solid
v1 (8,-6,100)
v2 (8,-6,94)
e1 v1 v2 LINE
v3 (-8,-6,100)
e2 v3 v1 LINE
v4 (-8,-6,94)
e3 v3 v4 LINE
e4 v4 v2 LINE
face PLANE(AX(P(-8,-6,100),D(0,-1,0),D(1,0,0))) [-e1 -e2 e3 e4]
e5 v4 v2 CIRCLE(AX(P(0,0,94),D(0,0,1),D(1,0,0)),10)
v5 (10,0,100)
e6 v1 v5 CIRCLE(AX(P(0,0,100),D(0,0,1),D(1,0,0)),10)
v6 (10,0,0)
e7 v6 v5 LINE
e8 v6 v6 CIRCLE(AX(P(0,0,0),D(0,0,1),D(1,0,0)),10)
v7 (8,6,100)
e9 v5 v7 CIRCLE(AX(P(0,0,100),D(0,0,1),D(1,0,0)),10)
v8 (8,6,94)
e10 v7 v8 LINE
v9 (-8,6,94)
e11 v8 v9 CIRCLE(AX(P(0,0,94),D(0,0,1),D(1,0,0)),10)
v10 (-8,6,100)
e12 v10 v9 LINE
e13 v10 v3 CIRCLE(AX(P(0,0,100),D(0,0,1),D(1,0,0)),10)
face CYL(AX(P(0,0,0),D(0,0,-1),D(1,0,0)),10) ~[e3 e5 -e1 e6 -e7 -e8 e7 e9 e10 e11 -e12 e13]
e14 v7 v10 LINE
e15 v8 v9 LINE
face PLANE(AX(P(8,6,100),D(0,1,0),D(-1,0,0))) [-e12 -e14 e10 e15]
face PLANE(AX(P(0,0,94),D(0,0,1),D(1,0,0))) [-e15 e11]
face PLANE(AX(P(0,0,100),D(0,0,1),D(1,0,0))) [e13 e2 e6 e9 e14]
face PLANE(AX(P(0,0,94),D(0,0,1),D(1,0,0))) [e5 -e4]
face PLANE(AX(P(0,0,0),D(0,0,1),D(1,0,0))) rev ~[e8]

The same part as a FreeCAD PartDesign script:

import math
import FreeCAD as App
import Part
import Sketcher

doc = App.newDocument("Part")
body = doc.addObject("PartDesign::Body", "Body")

sketch1 = body.newObject("Sketcher::SketchObject", "Sketch")
sketch1.AttachmentSupport = (doc.getObject("XY_Plane"), [""])
sketch1.MapMode = "FlatFace"
sketch1.addGeometry(Part.Circle(App.Vector(0, 0, 0), App.Vector(0, 0, 1), 10), False)
sketch1.addConstraint([
    Sketcher.Constraint("Coincident", 0, 3, -1, 1),
    Sketcher.Constraint("Diameter", 0, 20.0),
])
pad1 = body.newObject("PartDesign::Pad", "Pad")
pad1.Profile = sketch1
pad1.Length = 100

sketch2 = body.newObject("Sketcher::SketchObject", "Sketch001")
sketch2.AttachmentSupport = (doc.getObject("XY_Plane"), [""])
sketch2.MapMode = "FlatFace"
sketch2.AttachmentOffset = App.Placement(App.Vector(0, 0, 100), App.Rotation())
sketch2.addGeometry([
    Part.LineSegment(App.Vector(-8, 6, 0), App.Vector(8, 6, 0)),
    Part.ArcOfCircle(Part.Circle(App.Vector(0, 0, 0), App.Vector(0, 0, 1), 10), math.radians(37), math.radians(143)),
    Part.ArcOfCircle(Part.Circle(App.Vector(0, 0, 0), App.Vector(0, 0, 1), 10), math.radians(-143), math.radians(-37)),
    Part.LineSegment(App.Vector(8, -6, 0), App.Vector(-8, -6, 0)),
], False)
sketch2.addConstraint([
    Sketcher.Constraint("Coincident", 0, 1, 1, 2),
    Sketcher.Constraint("Coincident", 1, 1, 0, 2),
    Sketcher.Constraint("Coincident", 2, 1, 3, 2),
    Sketcher.Constraint("Coincident", 3, 1, 2, 2),
    Sketcher.Constraint("Horizontal", 0),
    Sketcher.Constraint("Horizontal", 3),
    Sketcher.Constraint("Coincident", 1, 3, -1, 1),
    Sketcher.Constraint("Coincident", 2, 3, -1, 1),
    Sketcher.Constraint("Equal", 1, 2),
    Sketcher.Constraint("Vertical", 0, 1, 2, 1),
    Sketcher.Constraint("Radius", 1, 10.0),
    Sketcher.Constraint("DistanceY", 2, 1, 0, 1, 12.0),
])
pocket1 = body.newObject("PartDesign::Pocket", "Pocket")
pocket1.Profile = sketch2
pocket1.Length = 6

doc.recompute()
